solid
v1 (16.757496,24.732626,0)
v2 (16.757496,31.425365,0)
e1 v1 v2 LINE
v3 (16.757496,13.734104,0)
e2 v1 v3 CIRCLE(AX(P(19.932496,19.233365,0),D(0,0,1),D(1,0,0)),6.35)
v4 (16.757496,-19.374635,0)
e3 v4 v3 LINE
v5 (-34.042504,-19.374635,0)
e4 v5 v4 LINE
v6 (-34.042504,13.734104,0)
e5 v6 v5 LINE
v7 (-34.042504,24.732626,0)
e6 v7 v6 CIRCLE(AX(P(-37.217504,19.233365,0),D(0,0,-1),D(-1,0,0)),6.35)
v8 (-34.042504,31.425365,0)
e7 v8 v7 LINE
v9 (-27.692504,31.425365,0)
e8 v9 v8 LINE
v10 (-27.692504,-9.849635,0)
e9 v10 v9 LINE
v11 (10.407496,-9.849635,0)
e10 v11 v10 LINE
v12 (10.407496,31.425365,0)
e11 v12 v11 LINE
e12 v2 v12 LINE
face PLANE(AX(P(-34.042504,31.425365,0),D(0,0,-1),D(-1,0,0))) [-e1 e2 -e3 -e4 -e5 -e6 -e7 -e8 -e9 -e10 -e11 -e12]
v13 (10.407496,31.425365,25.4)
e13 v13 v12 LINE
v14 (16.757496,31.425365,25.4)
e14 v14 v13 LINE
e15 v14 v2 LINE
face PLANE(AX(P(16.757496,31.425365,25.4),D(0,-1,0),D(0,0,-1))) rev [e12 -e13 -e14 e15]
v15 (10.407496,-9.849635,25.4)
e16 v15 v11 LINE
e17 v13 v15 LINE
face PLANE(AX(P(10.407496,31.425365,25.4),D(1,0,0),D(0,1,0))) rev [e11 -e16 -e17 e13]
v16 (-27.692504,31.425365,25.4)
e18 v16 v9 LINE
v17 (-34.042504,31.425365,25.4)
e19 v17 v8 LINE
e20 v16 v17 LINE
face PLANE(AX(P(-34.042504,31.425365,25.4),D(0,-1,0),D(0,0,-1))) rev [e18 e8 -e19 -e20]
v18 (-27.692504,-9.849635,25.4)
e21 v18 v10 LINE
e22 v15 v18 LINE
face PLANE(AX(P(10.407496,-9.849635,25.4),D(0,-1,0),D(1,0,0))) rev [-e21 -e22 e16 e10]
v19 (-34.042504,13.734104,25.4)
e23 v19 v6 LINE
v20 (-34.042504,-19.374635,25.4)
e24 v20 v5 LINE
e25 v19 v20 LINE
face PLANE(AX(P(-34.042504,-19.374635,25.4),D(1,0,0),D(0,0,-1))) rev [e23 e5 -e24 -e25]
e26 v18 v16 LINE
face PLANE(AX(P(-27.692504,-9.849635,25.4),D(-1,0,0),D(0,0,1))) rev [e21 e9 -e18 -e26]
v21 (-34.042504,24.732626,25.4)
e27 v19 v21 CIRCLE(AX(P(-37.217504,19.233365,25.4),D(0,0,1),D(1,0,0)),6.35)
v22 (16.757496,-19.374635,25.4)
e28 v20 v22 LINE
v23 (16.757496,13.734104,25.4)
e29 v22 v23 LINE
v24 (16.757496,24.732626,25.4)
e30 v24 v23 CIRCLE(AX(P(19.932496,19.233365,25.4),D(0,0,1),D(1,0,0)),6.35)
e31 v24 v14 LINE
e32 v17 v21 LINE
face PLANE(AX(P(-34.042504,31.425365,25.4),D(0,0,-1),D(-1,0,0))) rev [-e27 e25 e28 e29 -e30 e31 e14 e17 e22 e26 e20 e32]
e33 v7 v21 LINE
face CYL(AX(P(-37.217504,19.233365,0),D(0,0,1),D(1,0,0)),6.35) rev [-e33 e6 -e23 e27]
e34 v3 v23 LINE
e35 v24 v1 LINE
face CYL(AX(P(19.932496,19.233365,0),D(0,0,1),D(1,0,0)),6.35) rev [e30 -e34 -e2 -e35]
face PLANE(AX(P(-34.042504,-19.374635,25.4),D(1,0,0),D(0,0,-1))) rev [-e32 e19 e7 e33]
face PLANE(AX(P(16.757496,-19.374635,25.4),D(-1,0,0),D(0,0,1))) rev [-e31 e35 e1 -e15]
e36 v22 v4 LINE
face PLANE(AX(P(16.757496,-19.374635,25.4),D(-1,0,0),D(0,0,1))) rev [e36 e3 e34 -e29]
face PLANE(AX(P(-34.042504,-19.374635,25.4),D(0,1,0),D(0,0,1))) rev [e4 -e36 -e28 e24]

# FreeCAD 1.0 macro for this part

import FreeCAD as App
import Part
import Sketcher
Q = App.Units.Quantity


def add_polygon(sketch, points):
    """Adds a closed chain of lines whose ends are joined by coincident constraints."""
    first, n = sketch.GeometryCount, len(points)
    for a, b in zip(points, points[1:] + points[:1]):
        sketch.addGeometry(Part.LineSegment(App.Vector(*a, 0), App.Vector(*b, 0)), False)
    for i in range(n):
        sketch.addConstraint(Sketcher.Constraint("Coincident", first + i, 2, first + (i + 1) % n, 1))

doc = App.newDocument("Part")
params = doc.addObject("Spreadsheet::Sheet", "Params")
for row, (alias, value) in enumerate([
    ("sketch1_width", "2 in"),
    ("sketch1_width2", "1.5 in"),
    ("sketch1_height", "1.625 in"),
    ("pad1_length", "1 in"),
    ("sketch2_diameter", "0.5 in"),
    ("pocket1_length", "1 in"),
], start=1):
    params.set(f"A{row}", alias)
    params.set(f"B{row}", "=" + value)
    params.setAlias(f"B{row}", alias)

body = doc.addObject("PartDesign::Body", "Body")

# Sketch on XY plane
sketch1 = body.newObject("Sketcher::SketchObject", "Sketch")
sketch1.AttachmentSupport = (doc.getObject("XY_Plane"), [""])
sketch1.MapMode = "FlatFace"
add_polygon(sketch1, [(-34, -19), (17, -19), (17, 31), (10, 31), (10, -10), (-28, -10), (-28, 31), (-34, 31)])  # lines 0-7
sketch1.addConstraint([
    Sketcher.Constraint("Horizontal", 0),
    Sketcher.Constraint("Vertical", 1),
    Sketcher.Constraint("Horizontal", 2),
    Sketcher.Constraint("Vertical", 3),
    Sketcher.Constraint("Horizontal", 4),
    Sketcher.Constraint("Vertical", 5),
    Sketcher.Constraint("Horizontal", 6),
    Sketcher.Constraint("Vertical", 7),
    Sketcher.Constraint("Horizontal", 2, 2, 5, 2),
    Sketcher.Constraint("Equal", 2, 6),
    Sketcher.Constraint("Equal", 0, 1),
    Sketcher.Constraint("DistanceX", 0, 1, 0, 2, Q("2 in")),
    Sketcher.Constraint("DistanceX", 4, 2, 4, 1, Q("1.5 in")),
    Sketcher.Constraint("DistanceY", 3, 2, 3, 1, Q("1.625 in")),
    Sketcher.Constraint("DistanceX", -1, 1, 0, 2, 16.757496),
    Sketcher.Constraint("DistanceY", 0, 2, -1, 1, 19.374635),
])
sketch1.setExpression("Constraints[19]", "Params.sketch1_width")
sketch1.setExpression("Constraints[20]", "Params.sketch1_width2")
sketch1.setExpression("Constraints[21]", "Params.sketch1_height")
pad1 = body.newObject("PartDesign::Pad", "Pad")
pad1.Profile = sketch1
pad1.setExpression("Length", "Params.pad1_length")

# Sketch on XY plane
sketch2 = body.newObject("Sketcher::SketchObject", "Sketch001")
sketch2.AttachmentSupport = (doc.getObject("XY_Plane"), [""])
sketch2.MapMode = "FlatFace"
sketch2.AttachmentOffset = App.Placement(App.Vector(0, 0, 1 * 25.4), App.Rotation())
sketch2.addGeometry([
    Part.Circle(App.Vector(-37, 19, 0), App.Vector(0, 0, 1), 6),
    Part.Circle(App.Vector(20, 19, 0), App.Vector(0, 0, 1), 6),
], False)
sketch2.addConstraint([
    Sketcher.Constraint("Equal", 0, 1),
    Sketcher.Constraint("Horizontal", 0, 3, 1, 3),
    Sketcher.Constraint("Diameter", 0, Q("0.5 in")),
    Sketcher.Constraint("DistanceX", 0, 3, 1, 3, Q("2.25 in")),
    Sketcher.Constraint("DistanceX", 0, 3, -1, 1, 37.217504),
    Sketcher.Constraint("DistanceY", -1, 1, 0, 3, 19.233365),
])
sketch2.setExpression("Constraints[2]", "Params.sketch2_diameter")
pocket1 = body.newObject("PartDesign::Pocket", "Pocket")
pocket1.Profile = sketch2
pocket1.setExpression("Length", "Params.pocket1_length")

doc.recompute()
